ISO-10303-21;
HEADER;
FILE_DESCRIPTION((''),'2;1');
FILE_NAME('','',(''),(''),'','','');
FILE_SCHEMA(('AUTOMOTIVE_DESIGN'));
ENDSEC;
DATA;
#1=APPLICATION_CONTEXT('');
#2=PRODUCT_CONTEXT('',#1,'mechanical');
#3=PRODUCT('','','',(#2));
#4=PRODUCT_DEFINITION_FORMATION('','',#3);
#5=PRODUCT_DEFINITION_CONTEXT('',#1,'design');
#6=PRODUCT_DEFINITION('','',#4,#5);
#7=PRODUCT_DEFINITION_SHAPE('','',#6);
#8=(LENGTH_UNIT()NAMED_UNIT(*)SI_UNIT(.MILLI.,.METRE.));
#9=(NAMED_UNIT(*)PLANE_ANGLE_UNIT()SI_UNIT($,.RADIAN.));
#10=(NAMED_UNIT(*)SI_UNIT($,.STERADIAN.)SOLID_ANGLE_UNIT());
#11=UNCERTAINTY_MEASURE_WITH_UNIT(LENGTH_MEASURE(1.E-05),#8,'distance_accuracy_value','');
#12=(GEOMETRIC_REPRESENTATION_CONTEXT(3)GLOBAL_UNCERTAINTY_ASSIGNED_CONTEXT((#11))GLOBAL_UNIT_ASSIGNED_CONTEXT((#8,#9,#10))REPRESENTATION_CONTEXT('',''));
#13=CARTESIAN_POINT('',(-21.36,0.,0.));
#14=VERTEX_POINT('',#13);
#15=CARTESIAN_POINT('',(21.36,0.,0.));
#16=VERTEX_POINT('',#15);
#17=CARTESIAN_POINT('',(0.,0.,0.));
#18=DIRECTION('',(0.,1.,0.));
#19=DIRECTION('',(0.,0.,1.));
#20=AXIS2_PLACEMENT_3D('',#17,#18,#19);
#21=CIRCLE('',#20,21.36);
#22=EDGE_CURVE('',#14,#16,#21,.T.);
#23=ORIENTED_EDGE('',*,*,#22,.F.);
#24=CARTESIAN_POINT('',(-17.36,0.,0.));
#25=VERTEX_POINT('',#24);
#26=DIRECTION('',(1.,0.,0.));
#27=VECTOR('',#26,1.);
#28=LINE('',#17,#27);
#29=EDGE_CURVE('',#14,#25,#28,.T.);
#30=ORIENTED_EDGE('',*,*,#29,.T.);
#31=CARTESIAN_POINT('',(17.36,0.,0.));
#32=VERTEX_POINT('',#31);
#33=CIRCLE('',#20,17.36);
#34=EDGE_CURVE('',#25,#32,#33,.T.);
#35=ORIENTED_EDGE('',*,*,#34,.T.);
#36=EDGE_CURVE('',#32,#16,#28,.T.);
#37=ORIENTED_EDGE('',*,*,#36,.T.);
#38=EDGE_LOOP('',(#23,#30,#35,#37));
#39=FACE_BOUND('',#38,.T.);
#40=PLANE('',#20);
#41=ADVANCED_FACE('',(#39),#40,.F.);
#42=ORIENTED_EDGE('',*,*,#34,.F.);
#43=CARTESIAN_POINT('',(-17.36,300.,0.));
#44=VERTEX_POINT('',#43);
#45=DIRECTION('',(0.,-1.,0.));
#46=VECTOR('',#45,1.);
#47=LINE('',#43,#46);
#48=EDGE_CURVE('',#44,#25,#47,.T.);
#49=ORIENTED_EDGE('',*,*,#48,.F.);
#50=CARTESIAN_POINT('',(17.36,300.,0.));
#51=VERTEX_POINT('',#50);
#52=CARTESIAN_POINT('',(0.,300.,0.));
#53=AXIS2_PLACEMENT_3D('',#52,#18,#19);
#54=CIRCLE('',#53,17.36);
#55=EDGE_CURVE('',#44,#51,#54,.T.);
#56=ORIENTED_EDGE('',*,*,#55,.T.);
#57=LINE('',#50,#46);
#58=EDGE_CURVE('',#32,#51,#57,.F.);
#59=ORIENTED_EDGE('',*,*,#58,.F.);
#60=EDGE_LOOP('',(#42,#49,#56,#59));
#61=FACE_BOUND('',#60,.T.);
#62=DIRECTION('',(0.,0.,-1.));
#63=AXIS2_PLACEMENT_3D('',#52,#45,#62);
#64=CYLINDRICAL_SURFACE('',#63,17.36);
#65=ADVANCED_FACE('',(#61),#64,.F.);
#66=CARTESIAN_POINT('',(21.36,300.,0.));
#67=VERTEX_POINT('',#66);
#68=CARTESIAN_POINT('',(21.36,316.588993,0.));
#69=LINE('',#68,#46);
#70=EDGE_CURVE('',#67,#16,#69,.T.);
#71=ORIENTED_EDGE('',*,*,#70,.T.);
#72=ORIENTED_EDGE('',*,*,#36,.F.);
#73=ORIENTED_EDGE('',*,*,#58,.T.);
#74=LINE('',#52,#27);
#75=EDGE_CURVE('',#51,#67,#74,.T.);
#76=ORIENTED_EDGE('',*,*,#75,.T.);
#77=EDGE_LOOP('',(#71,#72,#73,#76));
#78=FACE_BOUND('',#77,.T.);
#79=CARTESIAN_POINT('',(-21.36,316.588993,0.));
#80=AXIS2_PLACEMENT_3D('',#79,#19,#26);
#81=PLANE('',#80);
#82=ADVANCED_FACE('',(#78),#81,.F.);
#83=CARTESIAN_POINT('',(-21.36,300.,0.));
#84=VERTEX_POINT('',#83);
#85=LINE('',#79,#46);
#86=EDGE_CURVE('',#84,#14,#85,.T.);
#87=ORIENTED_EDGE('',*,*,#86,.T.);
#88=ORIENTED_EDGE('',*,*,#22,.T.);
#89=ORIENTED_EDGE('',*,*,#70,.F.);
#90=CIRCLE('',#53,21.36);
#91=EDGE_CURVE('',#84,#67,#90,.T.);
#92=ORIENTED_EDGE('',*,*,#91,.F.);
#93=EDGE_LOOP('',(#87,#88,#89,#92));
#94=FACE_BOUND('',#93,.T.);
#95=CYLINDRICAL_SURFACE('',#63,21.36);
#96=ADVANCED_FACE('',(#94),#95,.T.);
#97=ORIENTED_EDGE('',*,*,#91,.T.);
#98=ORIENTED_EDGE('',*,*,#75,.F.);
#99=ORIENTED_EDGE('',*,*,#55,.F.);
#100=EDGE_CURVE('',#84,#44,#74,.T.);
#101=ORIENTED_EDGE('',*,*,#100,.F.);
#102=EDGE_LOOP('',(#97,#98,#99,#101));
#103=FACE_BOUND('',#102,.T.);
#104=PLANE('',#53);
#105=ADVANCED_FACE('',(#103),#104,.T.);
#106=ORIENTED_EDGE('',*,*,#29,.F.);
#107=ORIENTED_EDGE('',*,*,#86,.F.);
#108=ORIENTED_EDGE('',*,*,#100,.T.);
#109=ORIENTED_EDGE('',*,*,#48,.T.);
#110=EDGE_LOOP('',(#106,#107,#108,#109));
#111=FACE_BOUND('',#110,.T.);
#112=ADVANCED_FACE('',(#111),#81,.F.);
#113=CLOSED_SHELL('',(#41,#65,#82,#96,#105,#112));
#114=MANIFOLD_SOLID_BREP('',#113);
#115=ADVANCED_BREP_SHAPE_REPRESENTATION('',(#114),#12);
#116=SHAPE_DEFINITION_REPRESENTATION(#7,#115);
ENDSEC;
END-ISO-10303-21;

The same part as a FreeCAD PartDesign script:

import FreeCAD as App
import Part
import Sketcher

V = App.Vector
Q = App.Units.Quantity


def faces_at(feature, points):
    """Names of the faces that lie closest to the given points."""
    faces = feature.Shape.Faces
    near = lambda p: min(range(len(faces)), key=lambda i: faces[i].distToShape(Part.Vertex(*p))[0])
    return sorted({f"Face{near(p) + 1}" for p in points})


def add_polygon(sketch, points):
    """Adds a closed chain of lines whose ends are joined by coincident constraints."""
    first, n = sketch.GeometryCount, len(points)
    for a, b in zip(points, points[1:] + points[:1]):
        sketch.addGeometry(Part.LineSegment(App.Vector(*a, 0), App.Vector(*b, 0)), False)
    for i in range(n):
        sketch.addConstraint(Sketcher.Constraint("Coincident", first + i, 2, first + (i + 1) % n, 1))

doc = App.newDocument("Part")
body = doc.addObject("PartDesign::Body", "Body")

sketch1 = body.newObject("Sketcher::SketchObject", "Sketch")
sketch1.AttachmentSupport = (doc.getObject("XZ_Plane"), [""])
sketch1.MapMode = "FlatFace"
sketch1.addGeometry(Part.Circle(V(0, 0, 0), V(0, 0, 1), 21), False)
sketch1.addConstraint([
    Sketcher.Constraint("Coincident", 0, 3, -1, 1),
    Sketcher.Constraint("Diameter", 0, Q("42.72 mm")),
])
pad1 = body.newObject("PartDesign::Pad", "Pad")
pad1.Profile = sketch1
pad1.Length = 300
pad1.Reversed = True
doc.recompute()

thickness = body.newObject("PartDesign::Thickness", "Thickness")
thickness.Base = (pad1, faces_at(pad1, [(0, 300, 0), (0, 0, 0)]))
thickness.Value = 4
thickness.Reversed = True
thickness.Join = "Intersection"

sketch2 = body.newObject("Sketcher::SketchObject", "Sketch001")
sketch2.AttachmentSupport = (doc.getObject("YZ_Plane"), [""])
sketch2.MapMode = "FlatFace"
add_polygon(sketch2, [(317, 0), (-40, 0), (-40, -54), (317, -54)])
sketch2.addConstraint([
    Sketcher.Constraint("Horizontal", 0),
    Sketcher.Constraint("Vertical", 1),
    Sketcher.Constraint("Horizontal", 2),
    Sketcher.Constraint("Vertical", 3),
    Sketcher.Constraint("PointOnObject", 0, 2, -1),
    Sketcher.Constraint("DistanceX", 0, 2, 0, 1, Q("357.024978 mm")),
    Sketcher.Constraint("DistanceY", 1, 2, 1, 1, Q("54.462291 mm")),
    Sketcher.Constraint("DistanceX", 0, 2, -1, 1, Q("40.435986 mm")),
])
pocket1 = body.newObject("PartDesign::Pocket", "Pocket")
pocket1.Profile = sketch2
pocket1.Type = "ThroughAll"
pocket1.Midplane = True

doc.recompute()
